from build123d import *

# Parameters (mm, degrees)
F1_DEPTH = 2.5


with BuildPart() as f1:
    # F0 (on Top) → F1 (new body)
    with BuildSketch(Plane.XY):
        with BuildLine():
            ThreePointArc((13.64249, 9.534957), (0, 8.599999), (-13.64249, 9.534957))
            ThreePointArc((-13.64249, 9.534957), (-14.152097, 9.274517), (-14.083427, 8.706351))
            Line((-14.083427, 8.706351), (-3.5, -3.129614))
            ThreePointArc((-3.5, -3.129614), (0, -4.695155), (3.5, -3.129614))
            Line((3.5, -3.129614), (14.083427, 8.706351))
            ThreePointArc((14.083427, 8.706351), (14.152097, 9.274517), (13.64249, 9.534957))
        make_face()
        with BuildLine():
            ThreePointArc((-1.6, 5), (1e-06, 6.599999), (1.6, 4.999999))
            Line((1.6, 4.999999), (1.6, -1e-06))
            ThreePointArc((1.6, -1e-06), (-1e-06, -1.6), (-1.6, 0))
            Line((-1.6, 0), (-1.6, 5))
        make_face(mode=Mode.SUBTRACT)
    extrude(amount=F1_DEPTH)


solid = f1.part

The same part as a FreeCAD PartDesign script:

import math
import FreeCAD as App
import Part
import Sketcher

V = App.Vector
Q = App.Units.Quantity

doc = App.newDocument("Part")
body = doc.addObject("PartDesign::Body", "Body")

sketch1 = doc.addObject("Sketcher::SketchObject", "Sketch")
body.addObject(sketch1)
sketch1.AttachmentSupport = (doc.XY_Plane, [""])
sketch1.MapMode = "FlatFace"
sketch1.addGeometry([
    Part.ArcOfCircle(Part.Circle(V(0, 108.6, 0), V(0, 0, 1), 100), math.radians(-97.84), math.radians(-82.16)),
    Part.ArcOfCircle(Part.Circle(V(-13.71, 9.04, 0), V(0, 0, 1), 0.5), math.radians(82), math.radians(222)),
    Part.LineSegment(V(-14.08, 8.71, 0), V(-3.5, -3.13, 0)),
    Part.ArcOfCircle(Part.Circle(V(0, 0, 0), V(0, 0, 1), 4.7), math.radians(-138), math.radians(-42)),
    Part.LineSegment(V(3.5, -3.13, 0), V(14.08, 8.71, 0)),
    Part.ArcOfCircle(Part.Circle(V(13.71, 9.04, 0), V(0, 0, 1), 0.5), math.radians(-42), math.radians(98)),
    Part.LineSegment(V(-1.6, 0, 0), V(-1.6, 5, 0)),
    Part.ArcOfCircle(Part.Circle(V(0, 5, 0), V(0, 0, 1), 1.6), math.radians(0), math.radians(180)),
    Part.LineSegment(V(1.6, 5, 0), V(1.6, 0, 0)),
    Part.ArcOfCircle(Part.Circle(V(0, 0, 0), V(0, 0, 1), 1.6), math.radians(180), math.radians(360)),
], False)
sketch1.addConstraint([
    Sketcher.Constraint("Tangent", 0, 1, 1, 1),
    Sketcher.Constraint("Tangent", 1, 2, 2, 1),
    Sketcher.Constraint("Tangent", 2, 2, 3, 1),
    Sketcher.Constraint("Tangent", 3, 2, 4, 1),
    Sketcher.Constraint("Tangent", 4, 2, 5, 1),
    Sketcher.Constraint("Tangent", 5, 2, 0, 2),
    Sketcher.Constraint("Tangent", 6, 2, 7, 2),
    Sketcher.Constraint("Tangent", 7, 1, 8, 1),
    Sketcher.Constraint("Tangent", 8, 2, 9, 2),
    Sketcher.Constraint("Tangent", 9, 1, 6, 1),
    Sketcher.Constraint("Vertical", 6),
    Sketcher.Constraint("Vertical", 8),
    Sketcher.Constraint("Coincident", 3, 3, -1, 1),
    Sketcher.Constraint("Coincident", 9, 3, -1, 1),
    Sketcher.Constraint("Equal", 1, 5),
    Sketcher.Constraint("Symmetric", 1, 3, 5, 3, -2),
    Sketcher.Constraint("Radius", 1, Q("0.5 mm")),
    Sketcher.Constraint("Radius", 7, Q("1.6 mm")),
    Sketcher.Constraint("DistanceY", 6, 1, 6, 2, Q("5 mm")),
    Sketcher.Constraint("DistanceX", 2, 2, 3, 2, Q("7 mm")),
    Sketcher.Constraint("Radius", 0, Q("100.000043 mm")),
    Sketcher.Constraint("Radius", 3, Q("4.695156 mm")),
    Sketcher.Constraint("DistanceY", -1, 1, 0, 3, Q("108.600042 mm")),
])
pad1 = doc.addObject("PartDesign::Pad", "Pad")
body.addObject(pad1)
pad1.Profile = sketch1
pad1.Length = 2.5

doc.recompute()
